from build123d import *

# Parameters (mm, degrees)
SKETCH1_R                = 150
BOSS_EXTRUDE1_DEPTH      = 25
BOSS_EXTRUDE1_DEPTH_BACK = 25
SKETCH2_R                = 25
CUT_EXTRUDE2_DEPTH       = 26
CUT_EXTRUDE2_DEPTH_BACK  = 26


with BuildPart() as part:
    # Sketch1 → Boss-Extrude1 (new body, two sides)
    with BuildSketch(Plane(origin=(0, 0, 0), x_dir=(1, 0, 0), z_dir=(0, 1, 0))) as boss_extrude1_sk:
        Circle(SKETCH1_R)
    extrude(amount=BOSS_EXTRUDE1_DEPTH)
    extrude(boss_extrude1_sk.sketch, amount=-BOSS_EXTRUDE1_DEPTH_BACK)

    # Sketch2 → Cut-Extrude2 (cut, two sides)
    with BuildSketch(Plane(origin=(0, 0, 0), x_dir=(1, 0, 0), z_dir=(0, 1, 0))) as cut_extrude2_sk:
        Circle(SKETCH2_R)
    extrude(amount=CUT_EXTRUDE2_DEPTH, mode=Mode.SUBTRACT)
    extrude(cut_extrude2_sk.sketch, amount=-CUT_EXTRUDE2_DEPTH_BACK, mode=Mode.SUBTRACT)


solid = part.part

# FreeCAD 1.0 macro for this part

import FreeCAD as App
import Part
import Sketcher

doc = App.newDocument("Part")
body = doc.addObject("PartDesign::Body", "Body")

sketch1 = body.newObject("Sketcher::SketchObject", "Sketch")
sketch1.AttachmentSupport = (doc.getObject("XZ_Plane"), [""])
sketch1.MapMode = "FlatFace"
sketch1.addGeometry(Part.Circle(App.Vector(0, 0, 0), App.Vector(0, 0, 1), 150), False)
sketch1.addConstraint([
    Sketcher.Constraint("Coincident", 0, 3, -1, 1),
    Sketcher.Constraint("Diameter", 0, 300.0),
])
pad1 = body.newObject("PartDesign::Pad", "Pad")
pad1.Profile = sketch1
pad1.Type = "TwoLengths"
pad1.Length = 25
pad1.Length2 = 25
pad1.Reversed = True

sketch2 = body.newObject("Sketcher::SketchObject", "Sketch001")
sketch2.AttachmentSupport = (doc.getObject("XZ_Plane"), [""])
sketch2.MapMode = "FlatFace"
sketch2.addGeometry(Part.Circle(App.Vector(0, 0, 0), App.Vector(0, 0, 1), 25), False)
sketch2.addConstraint([
    Sketcher.Constraint("Coincident", 0, 3, -1, 1),
    Sketcher.Constraint("Diameter", 0, 50.0),
])
pocket1 = body.newObject("PartDesign::Pocket", "Pocket")
pocket1.Profile = sketch2
pocket1.Type = "ThroughAll"
pocket1.Midplane = True

doc.recompute()
